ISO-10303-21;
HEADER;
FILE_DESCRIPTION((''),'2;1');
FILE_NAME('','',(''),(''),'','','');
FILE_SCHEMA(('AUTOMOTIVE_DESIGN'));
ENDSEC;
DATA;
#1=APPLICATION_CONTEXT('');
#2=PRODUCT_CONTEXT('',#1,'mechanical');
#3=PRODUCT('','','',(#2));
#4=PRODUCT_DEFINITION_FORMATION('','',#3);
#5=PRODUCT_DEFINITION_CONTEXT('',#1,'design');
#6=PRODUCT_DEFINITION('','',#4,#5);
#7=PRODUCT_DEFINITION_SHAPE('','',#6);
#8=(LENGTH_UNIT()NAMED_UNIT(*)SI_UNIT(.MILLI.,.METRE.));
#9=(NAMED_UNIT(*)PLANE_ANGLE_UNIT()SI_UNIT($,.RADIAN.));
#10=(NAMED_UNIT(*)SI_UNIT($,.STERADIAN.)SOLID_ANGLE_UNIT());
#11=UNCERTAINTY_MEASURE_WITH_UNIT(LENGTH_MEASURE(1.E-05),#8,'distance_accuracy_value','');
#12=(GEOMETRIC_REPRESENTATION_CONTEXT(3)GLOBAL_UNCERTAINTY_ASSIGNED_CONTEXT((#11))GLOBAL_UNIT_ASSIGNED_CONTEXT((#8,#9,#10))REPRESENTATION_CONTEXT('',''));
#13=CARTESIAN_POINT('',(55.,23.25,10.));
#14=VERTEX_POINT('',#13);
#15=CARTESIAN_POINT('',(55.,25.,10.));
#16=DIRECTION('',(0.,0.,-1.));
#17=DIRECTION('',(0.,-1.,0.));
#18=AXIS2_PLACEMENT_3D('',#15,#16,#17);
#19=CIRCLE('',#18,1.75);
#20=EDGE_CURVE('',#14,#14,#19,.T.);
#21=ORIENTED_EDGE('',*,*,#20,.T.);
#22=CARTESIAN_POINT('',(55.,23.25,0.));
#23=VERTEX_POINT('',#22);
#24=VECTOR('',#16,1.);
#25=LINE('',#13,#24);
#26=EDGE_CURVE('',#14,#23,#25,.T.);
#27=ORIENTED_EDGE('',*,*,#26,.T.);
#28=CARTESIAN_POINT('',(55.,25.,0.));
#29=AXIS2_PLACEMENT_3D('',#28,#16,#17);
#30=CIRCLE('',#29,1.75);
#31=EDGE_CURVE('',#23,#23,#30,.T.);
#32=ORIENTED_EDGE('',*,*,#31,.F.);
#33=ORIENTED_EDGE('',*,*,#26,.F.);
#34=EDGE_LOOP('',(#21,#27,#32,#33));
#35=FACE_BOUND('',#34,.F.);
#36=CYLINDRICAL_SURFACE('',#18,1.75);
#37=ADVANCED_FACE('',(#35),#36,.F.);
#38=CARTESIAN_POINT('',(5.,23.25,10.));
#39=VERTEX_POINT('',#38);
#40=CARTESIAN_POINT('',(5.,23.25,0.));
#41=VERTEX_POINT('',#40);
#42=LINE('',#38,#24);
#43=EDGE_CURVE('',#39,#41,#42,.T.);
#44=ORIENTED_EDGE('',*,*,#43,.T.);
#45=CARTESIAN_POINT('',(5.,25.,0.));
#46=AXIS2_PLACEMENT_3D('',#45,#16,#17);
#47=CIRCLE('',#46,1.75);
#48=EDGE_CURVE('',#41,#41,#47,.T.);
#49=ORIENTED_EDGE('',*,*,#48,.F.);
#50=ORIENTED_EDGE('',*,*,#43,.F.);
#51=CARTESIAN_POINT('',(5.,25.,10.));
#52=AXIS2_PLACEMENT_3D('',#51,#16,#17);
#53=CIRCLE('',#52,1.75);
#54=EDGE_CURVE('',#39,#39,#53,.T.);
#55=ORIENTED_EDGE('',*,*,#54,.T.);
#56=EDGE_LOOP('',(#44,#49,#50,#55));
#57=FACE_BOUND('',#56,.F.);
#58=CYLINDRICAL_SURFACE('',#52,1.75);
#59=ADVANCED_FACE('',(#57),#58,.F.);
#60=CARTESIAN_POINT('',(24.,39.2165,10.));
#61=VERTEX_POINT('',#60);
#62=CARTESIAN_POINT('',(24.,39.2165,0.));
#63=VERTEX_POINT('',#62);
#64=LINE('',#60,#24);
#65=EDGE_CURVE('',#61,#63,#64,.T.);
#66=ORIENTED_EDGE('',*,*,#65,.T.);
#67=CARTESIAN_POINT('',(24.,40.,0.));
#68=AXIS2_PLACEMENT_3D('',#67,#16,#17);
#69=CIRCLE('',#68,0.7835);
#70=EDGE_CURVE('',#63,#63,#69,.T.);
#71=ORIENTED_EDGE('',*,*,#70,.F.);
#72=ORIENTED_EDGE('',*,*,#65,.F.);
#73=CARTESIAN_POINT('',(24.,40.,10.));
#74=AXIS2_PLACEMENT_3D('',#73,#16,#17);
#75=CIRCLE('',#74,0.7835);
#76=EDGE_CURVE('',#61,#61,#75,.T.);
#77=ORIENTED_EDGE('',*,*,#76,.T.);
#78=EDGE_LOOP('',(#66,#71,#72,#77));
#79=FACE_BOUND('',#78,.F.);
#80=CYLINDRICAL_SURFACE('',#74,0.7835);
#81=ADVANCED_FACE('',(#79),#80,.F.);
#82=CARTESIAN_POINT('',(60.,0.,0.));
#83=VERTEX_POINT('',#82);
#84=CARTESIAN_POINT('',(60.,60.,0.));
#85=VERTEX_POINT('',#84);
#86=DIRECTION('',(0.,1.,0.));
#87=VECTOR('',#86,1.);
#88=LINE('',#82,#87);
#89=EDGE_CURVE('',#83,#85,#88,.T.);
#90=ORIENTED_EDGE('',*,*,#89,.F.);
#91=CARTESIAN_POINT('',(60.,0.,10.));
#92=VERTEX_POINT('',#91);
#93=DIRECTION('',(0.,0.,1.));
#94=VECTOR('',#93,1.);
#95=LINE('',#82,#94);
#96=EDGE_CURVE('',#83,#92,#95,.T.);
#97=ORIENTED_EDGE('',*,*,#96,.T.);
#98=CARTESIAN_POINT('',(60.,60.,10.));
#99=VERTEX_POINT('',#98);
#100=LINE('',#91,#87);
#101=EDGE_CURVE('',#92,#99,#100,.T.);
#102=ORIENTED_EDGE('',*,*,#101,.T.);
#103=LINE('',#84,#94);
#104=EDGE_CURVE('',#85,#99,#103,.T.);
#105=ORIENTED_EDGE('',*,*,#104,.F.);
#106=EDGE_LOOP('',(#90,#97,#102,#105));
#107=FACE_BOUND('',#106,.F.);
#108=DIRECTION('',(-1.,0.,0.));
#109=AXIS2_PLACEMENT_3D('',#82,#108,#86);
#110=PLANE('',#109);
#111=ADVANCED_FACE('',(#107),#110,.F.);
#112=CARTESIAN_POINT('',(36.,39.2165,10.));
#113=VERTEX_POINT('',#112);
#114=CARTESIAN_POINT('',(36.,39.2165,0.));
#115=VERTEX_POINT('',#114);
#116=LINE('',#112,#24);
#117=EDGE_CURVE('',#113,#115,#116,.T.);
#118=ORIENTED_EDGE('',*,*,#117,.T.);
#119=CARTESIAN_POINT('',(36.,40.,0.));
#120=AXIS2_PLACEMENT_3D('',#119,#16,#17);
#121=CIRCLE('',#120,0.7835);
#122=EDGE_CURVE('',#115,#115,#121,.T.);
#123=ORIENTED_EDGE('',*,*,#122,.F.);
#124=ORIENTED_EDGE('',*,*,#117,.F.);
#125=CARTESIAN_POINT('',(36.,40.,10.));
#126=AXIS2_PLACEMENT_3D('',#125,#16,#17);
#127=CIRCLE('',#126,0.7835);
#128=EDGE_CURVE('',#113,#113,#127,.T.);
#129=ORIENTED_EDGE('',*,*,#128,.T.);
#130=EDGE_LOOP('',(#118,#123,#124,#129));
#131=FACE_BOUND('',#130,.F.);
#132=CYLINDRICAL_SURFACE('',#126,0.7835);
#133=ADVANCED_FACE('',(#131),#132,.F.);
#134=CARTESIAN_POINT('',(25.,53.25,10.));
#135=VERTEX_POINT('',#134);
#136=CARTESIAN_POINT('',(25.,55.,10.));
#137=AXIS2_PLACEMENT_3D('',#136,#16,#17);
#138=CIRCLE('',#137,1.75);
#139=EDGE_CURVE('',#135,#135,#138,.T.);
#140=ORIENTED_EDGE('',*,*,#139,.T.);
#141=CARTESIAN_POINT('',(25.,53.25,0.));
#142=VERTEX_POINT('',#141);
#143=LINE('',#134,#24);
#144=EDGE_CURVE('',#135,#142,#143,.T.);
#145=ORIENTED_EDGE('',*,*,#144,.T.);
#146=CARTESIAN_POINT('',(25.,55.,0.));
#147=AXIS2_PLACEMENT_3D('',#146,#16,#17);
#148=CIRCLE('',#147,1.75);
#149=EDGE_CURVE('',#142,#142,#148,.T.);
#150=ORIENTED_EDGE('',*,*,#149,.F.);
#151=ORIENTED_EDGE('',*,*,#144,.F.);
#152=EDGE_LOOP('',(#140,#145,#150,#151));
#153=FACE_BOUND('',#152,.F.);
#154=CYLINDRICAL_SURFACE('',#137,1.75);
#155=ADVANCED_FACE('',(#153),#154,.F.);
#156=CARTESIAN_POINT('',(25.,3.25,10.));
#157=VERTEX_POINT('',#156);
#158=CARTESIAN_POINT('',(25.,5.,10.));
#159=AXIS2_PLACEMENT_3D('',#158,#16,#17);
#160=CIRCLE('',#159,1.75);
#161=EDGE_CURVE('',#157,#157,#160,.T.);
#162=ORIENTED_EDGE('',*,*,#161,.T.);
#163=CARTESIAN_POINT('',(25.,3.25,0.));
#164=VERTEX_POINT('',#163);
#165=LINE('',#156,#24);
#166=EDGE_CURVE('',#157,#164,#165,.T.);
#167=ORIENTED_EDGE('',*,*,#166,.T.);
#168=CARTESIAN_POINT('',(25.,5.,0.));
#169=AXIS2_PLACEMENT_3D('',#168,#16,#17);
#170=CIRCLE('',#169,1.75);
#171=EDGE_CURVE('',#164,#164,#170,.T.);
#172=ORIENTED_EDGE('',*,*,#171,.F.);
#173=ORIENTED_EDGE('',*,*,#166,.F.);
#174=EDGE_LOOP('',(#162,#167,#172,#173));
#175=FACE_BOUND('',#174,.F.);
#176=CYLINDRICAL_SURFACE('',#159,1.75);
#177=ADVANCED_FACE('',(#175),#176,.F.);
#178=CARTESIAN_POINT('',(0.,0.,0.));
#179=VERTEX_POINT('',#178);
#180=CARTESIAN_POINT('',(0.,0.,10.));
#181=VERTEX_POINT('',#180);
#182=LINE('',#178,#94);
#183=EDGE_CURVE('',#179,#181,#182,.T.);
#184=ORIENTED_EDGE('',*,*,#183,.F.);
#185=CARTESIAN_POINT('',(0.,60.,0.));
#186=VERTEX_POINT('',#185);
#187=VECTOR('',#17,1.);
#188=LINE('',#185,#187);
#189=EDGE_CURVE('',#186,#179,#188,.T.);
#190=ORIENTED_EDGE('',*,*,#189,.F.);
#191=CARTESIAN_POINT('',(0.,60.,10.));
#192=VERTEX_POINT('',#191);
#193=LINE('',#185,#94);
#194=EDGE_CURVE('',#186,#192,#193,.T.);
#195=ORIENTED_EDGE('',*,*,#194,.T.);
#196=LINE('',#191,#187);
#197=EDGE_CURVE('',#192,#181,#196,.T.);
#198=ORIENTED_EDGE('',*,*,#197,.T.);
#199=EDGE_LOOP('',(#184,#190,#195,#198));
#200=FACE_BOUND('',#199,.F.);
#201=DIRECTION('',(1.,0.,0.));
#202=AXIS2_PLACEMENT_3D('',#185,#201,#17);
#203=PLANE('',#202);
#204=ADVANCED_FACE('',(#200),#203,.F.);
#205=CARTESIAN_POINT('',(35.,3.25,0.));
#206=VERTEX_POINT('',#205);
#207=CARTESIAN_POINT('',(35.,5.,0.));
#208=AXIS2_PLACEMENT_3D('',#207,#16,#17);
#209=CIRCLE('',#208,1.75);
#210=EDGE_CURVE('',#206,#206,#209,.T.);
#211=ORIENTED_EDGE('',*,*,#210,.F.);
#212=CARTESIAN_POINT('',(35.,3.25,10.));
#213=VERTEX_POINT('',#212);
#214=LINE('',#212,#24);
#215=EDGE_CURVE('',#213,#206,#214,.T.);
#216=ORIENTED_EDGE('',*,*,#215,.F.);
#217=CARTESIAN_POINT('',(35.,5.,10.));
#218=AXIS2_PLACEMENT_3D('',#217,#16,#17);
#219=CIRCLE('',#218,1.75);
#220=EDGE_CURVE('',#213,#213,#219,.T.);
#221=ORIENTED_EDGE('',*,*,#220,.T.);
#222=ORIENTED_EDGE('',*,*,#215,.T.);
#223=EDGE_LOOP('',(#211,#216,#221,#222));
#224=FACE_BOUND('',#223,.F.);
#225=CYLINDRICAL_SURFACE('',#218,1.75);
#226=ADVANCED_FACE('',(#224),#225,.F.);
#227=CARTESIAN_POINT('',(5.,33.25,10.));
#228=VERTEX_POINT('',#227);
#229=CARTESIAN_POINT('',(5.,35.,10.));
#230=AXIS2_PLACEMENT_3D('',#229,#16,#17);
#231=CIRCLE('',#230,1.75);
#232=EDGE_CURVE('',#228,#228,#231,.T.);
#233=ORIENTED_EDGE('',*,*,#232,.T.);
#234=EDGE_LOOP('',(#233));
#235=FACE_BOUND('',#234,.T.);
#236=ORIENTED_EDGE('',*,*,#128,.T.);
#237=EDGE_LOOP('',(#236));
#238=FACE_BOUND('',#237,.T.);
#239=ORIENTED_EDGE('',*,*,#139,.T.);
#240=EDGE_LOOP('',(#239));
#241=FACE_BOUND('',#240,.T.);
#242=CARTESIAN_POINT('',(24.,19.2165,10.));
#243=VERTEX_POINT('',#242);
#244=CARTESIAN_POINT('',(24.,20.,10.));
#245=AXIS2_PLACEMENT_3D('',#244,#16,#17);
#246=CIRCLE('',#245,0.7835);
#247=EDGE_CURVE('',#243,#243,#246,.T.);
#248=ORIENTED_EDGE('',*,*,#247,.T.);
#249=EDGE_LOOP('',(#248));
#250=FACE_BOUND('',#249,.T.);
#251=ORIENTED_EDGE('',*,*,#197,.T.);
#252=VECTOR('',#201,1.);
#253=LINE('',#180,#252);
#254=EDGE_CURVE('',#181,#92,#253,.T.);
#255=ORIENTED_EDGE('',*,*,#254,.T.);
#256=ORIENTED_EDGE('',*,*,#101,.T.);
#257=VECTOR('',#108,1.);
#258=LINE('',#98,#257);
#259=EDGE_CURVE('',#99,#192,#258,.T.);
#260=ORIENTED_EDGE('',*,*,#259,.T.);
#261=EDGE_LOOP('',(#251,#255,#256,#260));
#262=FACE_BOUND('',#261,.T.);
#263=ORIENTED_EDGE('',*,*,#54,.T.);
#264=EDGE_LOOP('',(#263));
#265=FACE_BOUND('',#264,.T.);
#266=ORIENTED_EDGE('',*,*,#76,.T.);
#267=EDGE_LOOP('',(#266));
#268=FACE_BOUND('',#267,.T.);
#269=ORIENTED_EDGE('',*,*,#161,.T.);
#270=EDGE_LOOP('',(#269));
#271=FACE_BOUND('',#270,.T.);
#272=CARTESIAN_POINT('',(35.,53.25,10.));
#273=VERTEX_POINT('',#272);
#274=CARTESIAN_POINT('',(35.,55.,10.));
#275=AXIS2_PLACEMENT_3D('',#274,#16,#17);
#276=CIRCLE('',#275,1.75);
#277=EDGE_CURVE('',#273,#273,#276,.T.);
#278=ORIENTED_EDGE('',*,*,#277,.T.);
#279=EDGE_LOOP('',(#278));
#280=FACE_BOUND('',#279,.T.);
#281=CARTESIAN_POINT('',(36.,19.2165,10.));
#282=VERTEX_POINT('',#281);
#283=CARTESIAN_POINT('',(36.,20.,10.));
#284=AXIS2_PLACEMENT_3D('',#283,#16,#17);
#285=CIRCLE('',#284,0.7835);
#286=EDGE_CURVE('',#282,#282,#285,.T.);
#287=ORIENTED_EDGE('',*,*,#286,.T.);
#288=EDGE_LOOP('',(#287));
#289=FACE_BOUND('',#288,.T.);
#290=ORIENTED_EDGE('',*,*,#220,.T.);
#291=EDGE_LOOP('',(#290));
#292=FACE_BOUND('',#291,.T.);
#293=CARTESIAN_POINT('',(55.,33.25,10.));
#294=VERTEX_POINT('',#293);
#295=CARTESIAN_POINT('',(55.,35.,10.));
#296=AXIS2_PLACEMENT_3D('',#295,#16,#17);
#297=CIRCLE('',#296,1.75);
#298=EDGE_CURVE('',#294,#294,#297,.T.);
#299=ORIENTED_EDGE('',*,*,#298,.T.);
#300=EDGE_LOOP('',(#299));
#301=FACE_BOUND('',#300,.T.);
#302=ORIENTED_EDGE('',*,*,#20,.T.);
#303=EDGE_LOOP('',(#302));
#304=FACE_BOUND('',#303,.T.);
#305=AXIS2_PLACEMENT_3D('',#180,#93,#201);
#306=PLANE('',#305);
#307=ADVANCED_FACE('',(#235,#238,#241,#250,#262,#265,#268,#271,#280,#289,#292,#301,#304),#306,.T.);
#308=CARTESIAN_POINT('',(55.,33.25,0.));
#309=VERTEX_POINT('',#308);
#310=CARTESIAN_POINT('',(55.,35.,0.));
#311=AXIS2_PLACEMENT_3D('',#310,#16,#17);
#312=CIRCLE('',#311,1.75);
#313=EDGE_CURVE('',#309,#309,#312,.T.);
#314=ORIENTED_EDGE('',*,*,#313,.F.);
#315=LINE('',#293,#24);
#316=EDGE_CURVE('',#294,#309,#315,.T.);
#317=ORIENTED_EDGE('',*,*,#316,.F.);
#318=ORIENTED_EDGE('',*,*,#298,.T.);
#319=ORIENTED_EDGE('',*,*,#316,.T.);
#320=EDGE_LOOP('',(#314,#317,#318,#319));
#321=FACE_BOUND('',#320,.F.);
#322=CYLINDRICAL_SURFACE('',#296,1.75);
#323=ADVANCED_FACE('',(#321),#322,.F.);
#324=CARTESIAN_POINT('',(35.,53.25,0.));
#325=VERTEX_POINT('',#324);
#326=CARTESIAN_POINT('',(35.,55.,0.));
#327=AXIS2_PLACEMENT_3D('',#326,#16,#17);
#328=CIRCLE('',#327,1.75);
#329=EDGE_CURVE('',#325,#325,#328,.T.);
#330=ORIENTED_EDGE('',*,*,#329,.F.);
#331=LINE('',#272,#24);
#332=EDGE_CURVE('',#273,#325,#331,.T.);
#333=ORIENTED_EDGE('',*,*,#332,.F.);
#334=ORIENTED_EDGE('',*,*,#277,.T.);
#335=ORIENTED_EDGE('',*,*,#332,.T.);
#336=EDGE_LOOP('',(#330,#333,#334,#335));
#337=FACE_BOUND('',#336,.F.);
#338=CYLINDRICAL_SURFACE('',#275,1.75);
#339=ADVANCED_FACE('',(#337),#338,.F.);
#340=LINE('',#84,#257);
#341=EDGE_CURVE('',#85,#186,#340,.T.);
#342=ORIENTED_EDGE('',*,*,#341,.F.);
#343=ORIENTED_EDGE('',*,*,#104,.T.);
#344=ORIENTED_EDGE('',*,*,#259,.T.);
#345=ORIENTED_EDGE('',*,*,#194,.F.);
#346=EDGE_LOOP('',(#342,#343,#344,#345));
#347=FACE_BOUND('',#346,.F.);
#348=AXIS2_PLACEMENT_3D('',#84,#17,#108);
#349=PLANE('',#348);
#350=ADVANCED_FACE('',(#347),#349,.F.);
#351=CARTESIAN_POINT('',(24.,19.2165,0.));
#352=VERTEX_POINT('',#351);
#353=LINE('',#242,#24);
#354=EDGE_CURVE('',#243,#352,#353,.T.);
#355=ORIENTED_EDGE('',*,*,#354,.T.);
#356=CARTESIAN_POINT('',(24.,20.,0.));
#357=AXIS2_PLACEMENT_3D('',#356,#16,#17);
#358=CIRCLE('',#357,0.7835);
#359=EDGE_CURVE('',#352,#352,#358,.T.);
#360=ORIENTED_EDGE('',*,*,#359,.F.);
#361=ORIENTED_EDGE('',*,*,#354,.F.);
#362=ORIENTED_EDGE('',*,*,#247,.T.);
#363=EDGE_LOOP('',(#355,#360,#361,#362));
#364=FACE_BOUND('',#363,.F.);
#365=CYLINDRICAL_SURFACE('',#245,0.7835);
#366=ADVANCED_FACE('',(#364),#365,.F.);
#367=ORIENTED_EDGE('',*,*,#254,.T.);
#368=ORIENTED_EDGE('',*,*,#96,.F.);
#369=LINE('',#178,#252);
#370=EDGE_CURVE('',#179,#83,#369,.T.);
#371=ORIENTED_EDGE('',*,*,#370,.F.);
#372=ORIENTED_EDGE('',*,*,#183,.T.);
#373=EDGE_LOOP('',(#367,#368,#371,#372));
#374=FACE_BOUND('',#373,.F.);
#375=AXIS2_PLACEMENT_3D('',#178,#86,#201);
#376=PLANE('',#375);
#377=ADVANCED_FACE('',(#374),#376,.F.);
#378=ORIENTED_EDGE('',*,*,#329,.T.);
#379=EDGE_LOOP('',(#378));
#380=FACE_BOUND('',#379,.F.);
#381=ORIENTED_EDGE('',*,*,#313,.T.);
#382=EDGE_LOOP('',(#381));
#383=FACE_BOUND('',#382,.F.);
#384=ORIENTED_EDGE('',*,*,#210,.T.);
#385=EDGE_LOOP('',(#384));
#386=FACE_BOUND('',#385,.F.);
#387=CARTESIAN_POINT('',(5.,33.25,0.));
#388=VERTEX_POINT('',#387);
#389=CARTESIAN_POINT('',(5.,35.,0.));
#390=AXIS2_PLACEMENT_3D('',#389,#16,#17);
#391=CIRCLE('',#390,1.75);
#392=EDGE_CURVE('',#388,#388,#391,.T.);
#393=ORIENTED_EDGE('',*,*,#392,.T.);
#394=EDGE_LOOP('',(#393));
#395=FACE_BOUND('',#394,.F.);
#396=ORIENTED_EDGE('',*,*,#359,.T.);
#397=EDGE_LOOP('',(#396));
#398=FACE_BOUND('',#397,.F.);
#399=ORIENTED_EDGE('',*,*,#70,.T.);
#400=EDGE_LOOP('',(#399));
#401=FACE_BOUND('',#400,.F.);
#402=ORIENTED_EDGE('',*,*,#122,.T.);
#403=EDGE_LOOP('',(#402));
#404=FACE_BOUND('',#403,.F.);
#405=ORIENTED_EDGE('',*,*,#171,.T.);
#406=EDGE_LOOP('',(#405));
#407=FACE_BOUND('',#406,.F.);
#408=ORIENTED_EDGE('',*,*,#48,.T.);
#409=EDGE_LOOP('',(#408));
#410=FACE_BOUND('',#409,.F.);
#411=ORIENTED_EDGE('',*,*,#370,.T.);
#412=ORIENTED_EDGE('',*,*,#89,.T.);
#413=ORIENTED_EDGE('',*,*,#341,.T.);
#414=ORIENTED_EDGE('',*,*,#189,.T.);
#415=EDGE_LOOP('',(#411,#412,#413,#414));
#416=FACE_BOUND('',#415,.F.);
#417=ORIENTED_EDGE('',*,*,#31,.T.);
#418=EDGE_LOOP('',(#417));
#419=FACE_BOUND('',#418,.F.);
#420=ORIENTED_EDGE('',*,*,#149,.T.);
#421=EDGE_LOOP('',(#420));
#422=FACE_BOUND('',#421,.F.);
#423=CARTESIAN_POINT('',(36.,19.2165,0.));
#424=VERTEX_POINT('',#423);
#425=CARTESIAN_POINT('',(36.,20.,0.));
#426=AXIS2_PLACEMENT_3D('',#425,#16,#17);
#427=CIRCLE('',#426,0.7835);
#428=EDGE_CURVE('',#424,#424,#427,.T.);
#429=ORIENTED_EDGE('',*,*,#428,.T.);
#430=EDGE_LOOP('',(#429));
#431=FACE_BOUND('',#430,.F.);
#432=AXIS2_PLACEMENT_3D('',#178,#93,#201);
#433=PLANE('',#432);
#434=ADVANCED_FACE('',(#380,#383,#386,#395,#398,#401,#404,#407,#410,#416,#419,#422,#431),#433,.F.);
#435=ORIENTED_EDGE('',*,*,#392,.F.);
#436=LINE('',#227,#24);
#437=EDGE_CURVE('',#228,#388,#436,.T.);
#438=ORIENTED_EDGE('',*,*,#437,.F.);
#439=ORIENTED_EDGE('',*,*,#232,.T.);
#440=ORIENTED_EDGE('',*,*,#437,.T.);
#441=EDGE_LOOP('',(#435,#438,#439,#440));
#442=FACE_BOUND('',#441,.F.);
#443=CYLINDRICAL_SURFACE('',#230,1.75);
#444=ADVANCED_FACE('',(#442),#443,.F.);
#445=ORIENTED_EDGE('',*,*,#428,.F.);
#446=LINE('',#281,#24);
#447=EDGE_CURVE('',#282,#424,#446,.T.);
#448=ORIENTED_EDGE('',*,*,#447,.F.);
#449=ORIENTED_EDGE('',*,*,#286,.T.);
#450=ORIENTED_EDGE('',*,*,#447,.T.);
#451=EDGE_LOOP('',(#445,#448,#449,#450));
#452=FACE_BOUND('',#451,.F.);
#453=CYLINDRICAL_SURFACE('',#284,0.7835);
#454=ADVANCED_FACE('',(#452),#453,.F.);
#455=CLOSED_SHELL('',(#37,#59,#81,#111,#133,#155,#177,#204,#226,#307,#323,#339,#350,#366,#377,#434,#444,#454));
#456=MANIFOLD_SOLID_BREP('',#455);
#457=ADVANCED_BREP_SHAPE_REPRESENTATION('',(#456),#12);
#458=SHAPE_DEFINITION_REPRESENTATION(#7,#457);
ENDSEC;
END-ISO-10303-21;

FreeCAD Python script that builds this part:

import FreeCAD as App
import Part
import Sketcher

V = App.Vector

doc = App.newDocument("Part")
body = doc.addObject("PartDesign::Body", "Body")

# Sketch on XY plane
sketch1 = body.newObject("Sketcher::SketchObject", "Sketch")
sketch1.AttachmentSupport = (doc.getObject("XY_Plane"), [""])
sketch1.MapMode = "FlatFace"
sketch1.addGeometry(Part.LineSegment(V(0, 60, 0), V(0, 0, 0)), False)
sketch1.addGeometry(Part.LineSegment(V(0, 0, 0), V(60, 0, 0)), False)
sketch1.addGeometry(Part.LineSegment(V(60, 0, 0), V(60, 60, 0)), False)
sketch1.addGeometry(Part.LineSegment(V(60, 60, 0), V(0, 60, 0)), False)
sketch1.addConstraint(Sketcher.Constraint("Coincident", 0, 2, 1, 1))
sketch1.addConstraint(Sketcher.Constraint("Coincident", 1, 2, 2, 1))
sketch1.addConstraint(Sketcher.Constraint("Coincident", 2, 2, 3, 1))
sketch1.addConstraint(Sketcher.Constraint("Coincident", 3, 2, 0, 1))
sketch1.addConstraint(Sketcher.Constraint("Vertical", 0))
sketch1.addConstraint(Sketcher.Constraint("Horizontal", 1))
sketch1.addConstraint(Sketcher.Constraint("Vertical", 2))
sketch1.addConstraint(Sketcher.Constraint("Horizontal", 3))
sketch1.addConstraint(Sketcher.Constraint("Coincident", 0, 2, -1, 1))
sketch1.addConstraint(Sketcher.Constraint("Equal", 3, 0))
sketch1.addConstraint(Sketcher.Constraint("DistanceX", 1, 1, 1, 2, 60.0))
pad1 = body.newObject("PartDesign::Pad", "Pad")
pad1.Profile = sketch1
pad1.Length = 10

# Sketch on XY plane
sketch2 = body.newObject("Sketcher::SketchObject", "Sketch001")
sketch2.AttachmentSupport = (doc.getObject("XY_Plane"), [""])
sketch2.MapMode = "FlatFace"
sketch2.AttachmentOffset = App.Placement(V(0, 0, 10), App.Rotation())
sketch2.addGeometry(Part.Circle(V(35, 55, 0), V(0, 0, 1), 1.8), False)
sketch2.addGeometry(Part.Circle(V(55, 35, 0), V(0, 0, 1), 1.8), False)
sketch2.addGeometry(Part.Circle(V(55, 25, 0), V(0, 0, 1), 1.8), False)
sketch2.addGeometry(Part.Circle(V(35, 5, 0), V(0, 0, 1), 1.8), False)
sketch2.addGeometry(Part.Circle(V(25, 55, 0), V(0, 0, 1), 1.8), False)
sketch2.addGeometry(Part.Circle(V(5, 35, 0), V(0, 0, 1), 1.8), False)
sketch2.addGeometry(Part.Circle(V(5, 25, 0), V(0, 0, 1), 1.8), False)
sketch2.addGeometry(Part.Circle(V(25, 5, 0), V(0, 0, 1), 1.8), False)
sketch2.addConstraint(Sketcher.Constraint("Equal", 0, 1))
sketch2.addConstraint(Sketcher.Constraint("Equal", 1, 2))
sketch2.addConstraint(Sketcher.Constraint("Equal", 2, 3))
sketch2.addConstraint(Sketcher.Constraint("Equal", 3, 4))
sketch2.addConstraint(Sketcher.Constraint("Equal", 4, 5))
sketch2.addConstraint(Sketcher.Constraint("Equal", 5, 6))
sketch2.addConstraint(Sketcher.Constraint("Equal", 6, 7))
sketch2.addConstraint(Sketcher.Constraint("Horizontal", 0, 3, 4, 3))
sketch2.addConstraint(Sketcher.Constraint("Horizontal", 1, 3, 5, 3))
sketch2.addConstraint(Sketcher.Constraint("Horizontal", 2, 3, 6, 3))
sketch2.addConstraint(Sketcher.Constraint("Horizontal", 3, 3, 7, 3))
sketch2.addConstraint(Sketcher.Constraint("Vertical", 1, 3, 2, 3))
sketch2.addConstraint(Sketcher.Constraint("Vertical", 0, 3, 3, 3))
sketch2.addConstraint(Sketcher.Constraint("Vertical", 5, 3, 6, 3))
sketch2.addConstraint(Sketcher.Constraint("Vertical", 4, 3, 7, 3))
sketch2.addConstraint(Sketcher.Constraint("Diameter", 0, 3.5))
sketch2.addConstraint(Sketcher.Constraint("DistanceX", -1, 1, 0, 3, 35.0))
sketch2.addConstraint(Sketcher.Constraint("DistanceY", -1, 1, 0, 3, 55.0))
sketch2.addConstraint(Sketcher.Constraint("DistanceX", -1, 1, 1, 3, 55.0))
sketch2.addConstraint(Sketcher.Constraint("DistanceY", -1, 1, 1, 3, 35.0))
sketch2.addConstraint(Sketcher.Constraint("DistanceY", -1, 1, 2, 3, 25.0))
sketch2.addConstraint(Sketcher.Constraint("DistanceY", -1, 1, 3, 3, 5.0))
sketch2.addConstraint(Sketcher.Constraint("DistanceX", -1, 1, 4, 3, 25.0))
sketch2.addConstraint(Sketcher.Constraint("DistanceX", -1, 1, 5, 3, 5.0))
doc.recompute()
hole = body.newObject("PartDesign::Hole", "Hole")
hole.Profile = sketch2
hole.ThreadType = "None"
hole.Diameter = 3.5
hole.DepthType = "ThroughAll"

# Sketch on XY plane
sketch3 = body.newObject("Sketcher::SketchObject", "Sketch002")
sketch3.AttachmentSupport = (doc.getObject("XY_Plane"), [""])
sketch3.MapMode = "FlatFace"
sketch3.AttachmentOffset = App.Placement(V(0, 0, 10), App.Rotation())
sketch3.addGeometry(Part.Circle(V(24, 40, 0), V(0, 0, 1), 0.8), False)
sketch3.addGeometry(Part.Circle(V(24, 20, 0), V(0, 0, 1), 0.8), False)
sketch3.addGeometry(Part.Circle(V(36, 40, 0), V(0, 0, 1), 0.8), False)
sketch3.addGeometry(Part.Circle(V(36, 20, 0), V(0, 0, 1), 0.8), False)
sketch3.addConstraint(Sketcher.Constraint("Equal", 0, 1))
sketch3.addConstraint(Sketcher.Constraint("Equal", 1, 2))
sketch3.addConstraint(Sketcher.Constraint("Equal", 2, 3))
sketch3.addConstraint(Sketcher.Constraint("Horizontal", 0, 3, 2, 3))
sketch3.addConstraint(Sketcher.Constraint("Horizontal", 1, 3, 3, 3))
sketch3.addConstraint(Sketcher.Constraint("Vertical", 0, 3, 1, 3))
sketch3.addConstraint(Sketcher.Constraint("Vertical", 2, 3, 3, 3))
sketch3.addConstraint(Sketcher.Constraint("Diameter", 0, 1.567))
sketch3.addConstraint(Sketcher.Constraint("DistanceX", -1, 1, 0, 3, 24.0))
sketch3.addConstraint(Sketcher.Constraint("DistanceY", -1, 1, 0, 3, 40.0))
sketch3.addConstraint(Sketcher.Constraint("DistanceY", -1, 1, 1, 3, 20.0))
sketch3.addConstraint(Sketcher.Constraint("DistanceX", -1, 1, 2, 3, 36.0))
doc.recompute()
hole2 = body.newObject("PartDesign::Hole", "Hole001")
hole2.Profile = sketch3
hole2.ThreadType = "None"
hole2.Diameter = 1.567
hole2.DepthType = "ThroughAll"

doc.recompute()
